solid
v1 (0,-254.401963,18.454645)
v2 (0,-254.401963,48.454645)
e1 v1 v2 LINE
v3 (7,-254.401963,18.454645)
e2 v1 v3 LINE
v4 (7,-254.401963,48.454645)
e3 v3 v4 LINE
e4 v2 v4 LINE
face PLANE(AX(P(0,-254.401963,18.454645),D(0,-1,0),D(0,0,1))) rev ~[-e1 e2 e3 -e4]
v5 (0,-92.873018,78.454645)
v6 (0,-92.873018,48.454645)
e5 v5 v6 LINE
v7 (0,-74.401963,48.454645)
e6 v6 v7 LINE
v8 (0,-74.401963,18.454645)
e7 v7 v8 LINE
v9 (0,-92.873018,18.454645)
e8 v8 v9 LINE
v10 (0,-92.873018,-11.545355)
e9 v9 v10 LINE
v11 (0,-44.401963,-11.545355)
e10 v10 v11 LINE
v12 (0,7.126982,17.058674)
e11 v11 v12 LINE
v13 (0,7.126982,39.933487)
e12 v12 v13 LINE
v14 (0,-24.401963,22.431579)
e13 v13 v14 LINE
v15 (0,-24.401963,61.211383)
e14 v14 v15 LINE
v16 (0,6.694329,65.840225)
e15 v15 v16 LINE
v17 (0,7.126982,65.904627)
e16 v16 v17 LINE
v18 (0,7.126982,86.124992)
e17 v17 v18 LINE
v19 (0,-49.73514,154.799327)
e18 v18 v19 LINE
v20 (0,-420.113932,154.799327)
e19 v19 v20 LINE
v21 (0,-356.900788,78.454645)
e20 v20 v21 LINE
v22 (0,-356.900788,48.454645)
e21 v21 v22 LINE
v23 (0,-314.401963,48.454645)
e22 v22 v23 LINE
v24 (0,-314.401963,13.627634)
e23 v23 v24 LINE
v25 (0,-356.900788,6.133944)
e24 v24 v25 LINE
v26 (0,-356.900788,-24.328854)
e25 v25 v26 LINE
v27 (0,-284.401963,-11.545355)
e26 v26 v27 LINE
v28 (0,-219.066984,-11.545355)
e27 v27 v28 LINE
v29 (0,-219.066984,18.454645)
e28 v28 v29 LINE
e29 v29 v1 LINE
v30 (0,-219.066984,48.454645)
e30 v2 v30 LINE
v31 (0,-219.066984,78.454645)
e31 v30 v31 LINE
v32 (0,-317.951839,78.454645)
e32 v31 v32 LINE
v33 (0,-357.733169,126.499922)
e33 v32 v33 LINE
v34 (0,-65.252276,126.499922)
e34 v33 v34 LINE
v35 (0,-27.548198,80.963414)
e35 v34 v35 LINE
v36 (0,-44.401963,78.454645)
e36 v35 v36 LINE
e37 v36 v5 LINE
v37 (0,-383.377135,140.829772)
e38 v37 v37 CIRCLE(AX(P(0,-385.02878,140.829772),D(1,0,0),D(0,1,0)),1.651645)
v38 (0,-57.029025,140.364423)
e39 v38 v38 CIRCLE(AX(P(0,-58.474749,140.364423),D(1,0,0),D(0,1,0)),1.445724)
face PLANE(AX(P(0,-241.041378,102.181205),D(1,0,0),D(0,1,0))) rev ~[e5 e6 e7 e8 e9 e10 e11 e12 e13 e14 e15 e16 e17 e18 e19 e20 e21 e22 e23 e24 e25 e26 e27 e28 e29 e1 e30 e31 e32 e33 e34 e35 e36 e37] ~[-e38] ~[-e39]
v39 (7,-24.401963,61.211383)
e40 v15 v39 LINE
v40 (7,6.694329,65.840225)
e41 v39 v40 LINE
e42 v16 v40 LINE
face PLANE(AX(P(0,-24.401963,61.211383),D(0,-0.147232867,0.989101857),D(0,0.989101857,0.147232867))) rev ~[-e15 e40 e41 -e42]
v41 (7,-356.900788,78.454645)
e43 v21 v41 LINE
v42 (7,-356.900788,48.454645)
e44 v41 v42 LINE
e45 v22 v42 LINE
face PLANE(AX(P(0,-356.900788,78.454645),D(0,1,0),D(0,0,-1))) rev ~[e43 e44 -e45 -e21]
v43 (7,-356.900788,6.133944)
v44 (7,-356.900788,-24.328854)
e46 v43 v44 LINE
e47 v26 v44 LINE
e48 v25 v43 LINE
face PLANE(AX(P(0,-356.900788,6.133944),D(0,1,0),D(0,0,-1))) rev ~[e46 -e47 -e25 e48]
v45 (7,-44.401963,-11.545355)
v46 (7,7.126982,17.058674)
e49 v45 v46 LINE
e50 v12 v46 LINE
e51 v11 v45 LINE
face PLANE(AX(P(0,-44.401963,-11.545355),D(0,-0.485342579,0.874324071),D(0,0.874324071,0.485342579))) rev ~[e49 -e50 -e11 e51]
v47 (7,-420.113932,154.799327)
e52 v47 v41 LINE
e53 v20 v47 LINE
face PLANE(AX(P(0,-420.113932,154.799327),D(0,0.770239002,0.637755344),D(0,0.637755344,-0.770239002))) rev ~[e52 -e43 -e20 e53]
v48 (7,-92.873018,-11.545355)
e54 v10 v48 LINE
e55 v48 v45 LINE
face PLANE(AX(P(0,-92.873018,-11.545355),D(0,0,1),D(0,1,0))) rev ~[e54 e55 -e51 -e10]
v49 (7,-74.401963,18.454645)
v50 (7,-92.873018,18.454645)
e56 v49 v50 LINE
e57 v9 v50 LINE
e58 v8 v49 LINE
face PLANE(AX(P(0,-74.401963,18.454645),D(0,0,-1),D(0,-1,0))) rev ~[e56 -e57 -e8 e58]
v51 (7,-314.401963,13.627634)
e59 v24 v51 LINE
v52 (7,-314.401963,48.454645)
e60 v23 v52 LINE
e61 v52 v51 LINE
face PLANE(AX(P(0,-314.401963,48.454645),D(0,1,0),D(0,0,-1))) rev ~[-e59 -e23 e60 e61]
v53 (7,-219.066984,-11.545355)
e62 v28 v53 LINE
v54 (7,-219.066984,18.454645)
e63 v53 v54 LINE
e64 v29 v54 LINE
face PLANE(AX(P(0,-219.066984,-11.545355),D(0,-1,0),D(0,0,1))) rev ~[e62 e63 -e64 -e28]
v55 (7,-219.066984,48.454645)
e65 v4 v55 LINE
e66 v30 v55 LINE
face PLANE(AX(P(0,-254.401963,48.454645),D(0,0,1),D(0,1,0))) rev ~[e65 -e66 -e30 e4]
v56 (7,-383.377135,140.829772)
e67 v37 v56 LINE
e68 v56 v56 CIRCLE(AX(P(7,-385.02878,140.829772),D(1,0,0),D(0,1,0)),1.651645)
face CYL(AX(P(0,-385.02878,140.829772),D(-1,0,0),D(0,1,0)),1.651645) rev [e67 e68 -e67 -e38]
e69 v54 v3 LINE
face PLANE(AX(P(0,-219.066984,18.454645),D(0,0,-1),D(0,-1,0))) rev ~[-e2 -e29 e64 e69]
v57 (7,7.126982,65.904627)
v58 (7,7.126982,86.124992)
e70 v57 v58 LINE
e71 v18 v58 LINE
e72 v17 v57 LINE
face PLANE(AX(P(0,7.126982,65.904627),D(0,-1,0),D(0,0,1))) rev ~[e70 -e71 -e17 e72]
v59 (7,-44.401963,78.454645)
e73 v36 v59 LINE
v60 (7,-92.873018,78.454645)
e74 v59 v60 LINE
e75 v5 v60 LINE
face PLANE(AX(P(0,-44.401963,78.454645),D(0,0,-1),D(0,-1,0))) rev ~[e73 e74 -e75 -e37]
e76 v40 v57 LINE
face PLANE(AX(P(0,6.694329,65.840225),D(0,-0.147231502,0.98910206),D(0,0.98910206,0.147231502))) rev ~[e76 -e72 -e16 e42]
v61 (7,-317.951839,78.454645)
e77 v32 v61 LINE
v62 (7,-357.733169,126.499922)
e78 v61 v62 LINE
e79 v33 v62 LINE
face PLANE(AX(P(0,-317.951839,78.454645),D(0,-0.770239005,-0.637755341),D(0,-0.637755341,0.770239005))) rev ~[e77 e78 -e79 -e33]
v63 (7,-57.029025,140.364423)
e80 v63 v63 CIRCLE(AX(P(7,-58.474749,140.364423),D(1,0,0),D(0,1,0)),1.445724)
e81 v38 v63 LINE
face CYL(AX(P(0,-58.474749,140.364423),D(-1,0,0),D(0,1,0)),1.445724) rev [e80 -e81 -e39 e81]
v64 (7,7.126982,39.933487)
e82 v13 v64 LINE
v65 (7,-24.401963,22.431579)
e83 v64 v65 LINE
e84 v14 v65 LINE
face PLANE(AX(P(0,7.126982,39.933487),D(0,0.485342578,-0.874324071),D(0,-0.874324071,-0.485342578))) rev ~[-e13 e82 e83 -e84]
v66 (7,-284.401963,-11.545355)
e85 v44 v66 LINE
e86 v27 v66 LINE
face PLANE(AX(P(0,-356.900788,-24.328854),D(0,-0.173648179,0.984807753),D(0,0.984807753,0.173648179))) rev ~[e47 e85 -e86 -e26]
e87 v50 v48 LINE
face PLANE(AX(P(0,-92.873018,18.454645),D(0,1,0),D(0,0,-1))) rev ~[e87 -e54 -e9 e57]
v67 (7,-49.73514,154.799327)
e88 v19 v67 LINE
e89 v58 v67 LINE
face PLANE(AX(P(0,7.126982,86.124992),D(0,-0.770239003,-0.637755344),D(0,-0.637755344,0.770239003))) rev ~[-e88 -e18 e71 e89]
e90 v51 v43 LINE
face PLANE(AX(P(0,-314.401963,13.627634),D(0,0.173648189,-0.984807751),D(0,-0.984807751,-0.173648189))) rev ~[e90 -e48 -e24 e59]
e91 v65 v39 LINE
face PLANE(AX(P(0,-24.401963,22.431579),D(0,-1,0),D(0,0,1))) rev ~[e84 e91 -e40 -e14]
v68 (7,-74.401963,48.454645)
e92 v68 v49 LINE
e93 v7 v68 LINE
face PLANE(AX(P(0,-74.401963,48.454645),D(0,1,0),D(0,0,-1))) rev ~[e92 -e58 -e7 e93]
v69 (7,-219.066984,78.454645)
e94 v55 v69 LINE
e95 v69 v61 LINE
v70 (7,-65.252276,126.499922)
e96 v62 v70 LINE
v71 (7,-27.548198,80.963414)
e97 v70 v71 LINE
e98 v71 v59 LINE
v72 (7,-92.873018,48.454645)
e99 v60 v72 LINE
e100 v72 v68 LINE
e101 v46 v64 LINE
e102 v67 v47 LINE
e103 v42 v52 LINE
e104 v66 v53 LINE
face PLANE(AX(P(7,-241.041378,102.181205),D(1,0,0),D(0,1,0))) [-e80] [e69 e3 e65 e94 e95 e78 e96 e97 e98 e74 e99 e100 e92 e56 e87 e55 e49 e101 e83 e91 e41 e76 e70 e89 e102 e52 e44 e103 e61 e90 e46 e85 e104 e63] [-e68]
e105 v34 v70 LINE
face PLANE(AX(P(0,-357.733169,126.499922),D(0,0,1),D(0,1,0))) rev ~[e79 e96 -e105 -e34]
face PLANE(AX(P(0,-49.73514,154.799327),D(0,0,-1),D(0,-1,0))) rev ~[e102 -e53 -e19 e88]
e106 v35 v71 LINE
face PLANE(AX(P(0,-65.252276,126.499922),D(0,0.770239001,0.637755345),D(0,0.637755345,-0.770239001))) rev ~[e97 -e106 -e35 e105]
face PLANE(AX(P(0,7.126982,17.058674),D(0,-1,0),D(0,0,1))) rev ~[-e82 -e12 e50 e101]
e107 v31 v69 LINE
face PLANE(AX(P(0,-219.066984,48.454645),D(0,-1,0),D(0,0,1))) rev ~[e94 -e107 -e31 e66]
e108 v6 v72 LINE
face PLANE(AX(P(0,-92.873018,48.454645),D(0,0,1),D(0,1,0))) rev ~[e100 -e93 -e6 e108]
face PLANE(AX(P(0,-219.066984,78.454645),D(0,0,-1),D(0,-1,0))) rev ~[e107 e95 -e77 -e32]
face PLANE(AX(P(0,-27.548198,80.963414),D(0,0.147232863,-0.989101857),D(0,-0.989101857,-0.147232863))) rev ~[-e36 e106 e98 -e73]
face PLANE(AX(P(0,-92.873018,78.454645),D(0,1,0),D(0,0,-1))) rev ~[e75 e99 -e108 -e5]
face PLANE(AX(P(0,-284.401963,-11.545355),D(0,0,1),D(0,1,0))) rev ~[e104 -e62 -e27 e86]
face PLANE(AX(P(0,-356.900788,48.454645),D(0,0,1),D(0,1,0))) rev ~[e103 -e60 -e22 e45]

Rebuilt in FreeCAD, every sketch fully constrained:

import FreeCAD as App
import Part
import Sketcher
Q = App.Units.Quantity


def add_polygon(sketch, points):
    """Adds a closed chain of lines whose ends are joined by coincident constraints."""
    first, n = sketch.GeometryCount, len(points)
    for a, b in zip(points, points[1:] + points[:1]):
        sketch.addGeometry(Part.LineSegment(App.Vector(*a, 0), App.Vector(*b, 0)), False)
    for i in range(n):
        sketch.addConstraint(Sketcher.Constraint("Coincident", first + i, 2, first + (i + 1) % n, 1))

doc = App.newDocument("Part")
body = doc.addObject("PartDesign::Body", "Body")

# Sketch on YZ plane
sketch1 = body.newObject("Sketcher::SketchObject", "Sketch")
sketch1.AttachmentSupport = (doc.getObject("YZ_Plane"), [""])
sketch1.MapMode = "FlatFace"
add_polygon(sketch1, [(-356.900788, 6.133944), (-356.900788, -24.328854), (-284.401963, -11.545355), (-219.066984, -11.545355), (-219.066984, 18.454645), (-254.401963, 18.454645), (-254.401963, 48.454645), (-219.066984, 48.454645), (-219.066984, 78.454645), (-317.951839, 78.454645), (-357.733169, 126.499922), (-65.252276, 126.499922), (-27.548198, 80.963414), (-44.401963, 78.454645), (-92.873018, 78.454645), (-92.873018, 48.454645), (-74.401963, 48.454645), (-74.401963, 18.454645), (-92.873018, 18.454645), (-92.873018, -11.545355), (-44.401963, -11.545355), (7.126982, 17.058674), (7.126982, 39.933487), (-24.401963, 22.431579), (-24.401963, 61.211383), (6.694329, 65.840225), (7.126982, 65.904627), (7.126982, 86.124992), (-49.73514, 154.799327), (-420.113932, 154.799327), (-356.900788, 78.454645), (-356.900788, 48.454645), (-314.401963, 48.454645), (-314.401963, 13.627634)])  # lines 0-33
sketch1.addGeometry(Part.Circle(App.Vector(-58.474749, 140.364423, 0), App.Vector(0, 0, 1), 1.445724), False)  # 34
sketch1.addGeometry(Part.Circle(App.Vector(-385.02878, 140.829772, 0), App.Vector(0, 0, 1), 1.651645), False)  # 35
sketch1.addConstraint(Sketcher.Constraint("Vertical", 0))
sketch1.addConstraint(Sketcher.Constraint("Horizontal", 2))
sketch1.addConstraint(Sketcher.Constraint("Vertical", 3))
sketch1.addConstraint(Sketcher.Constraint("Horizontal", 4))
sketch1.addConstraint(Sketcher.Constraint("Vertical", 5))
sketch1.addConstraint(Sketcher.Constraint("Horizontal", 6))
sketch1.addConstraint(Sketcher.Constraint("Vertical", 7))
sketch1.addConstraint(Sketcher.Constraint("Horizontal", 8))
sketch1.addConstraint(Sketcher.Constraint("Horizontal", 10))
sketch1.addConstraint(Sketcher.Constraint("Horizontal", 13))
sketch1.addConstraint(Sketcher.Constraint("Vertical", 14))
sketch1.addConstraint(Sketcher.Constraint("Horizontal", 15))
sketch1.addConstraint(Sketcher.Constraint("Vertical", 16))
sketch1.addConstraint(Sketcher.Constraint("Horizontal", 17))
sketch1.addConstraint(Sketcher.Constraint("Vertical", 18))
sketch1.addConstraint(Sketcher.Constraint("Horizontal", 19))
sketch1.addConstraint(Sketcher.Constraint("Vertical", 21))
sketch1.addConstraint(Sketcher.Constraint("Vertical", 23))
sketch1.addConstraint(Sketcher.Constraint("Vertical", 26))
sketch1.addConstraint(Sketcher.Constraint("Horizontal", 28))
sketch1.addConstraint(Sketcher.Constraint("Vertical", 30))
sketch1.addConstraint(Sketcher.Constraint("Horizontal", 31))
sketch1.addConstraint(Sketcher.Constraint("Vertical", 32))
sketch1.addConstraint(Sketcher.Constraint("Parallel", 9, 11))
sketch1.addConstraint(Sketcher.Constraint("Parallel", 20, 22))
sketch1.addConstraint(Sketcher.Constraint("Parallel", 12, 24))
sketch1.addConstraint(Sketcher.Constraint("Parallel", 24, 25))
sketch1.addConstraint(Sketcher.Constraint("Parallel", 11, 27))
sketch1.addConstraint(Sketcher.Constraint("Parallel", 27, 29))
sketch1.addConstraint(Sketcher.Constraint("Parallel", 1, 33))
sketch1.addConstraint(Sketcher.Constraint("Horizontal", 8, 2, 12, 2))
sketch1.addConstraint(Sketcher.Constraint("Horizontal", 6, 2, 14, 2))
sketch1.addConstraint(Sketcher.Constraint("Horizontal", 4, 2, 16, 2))
sketch1.addConstraint(Sketcher.Constraint("Horizontal", 2, 2, 18, 2))
sketch1.addConstraint(Sketcher.Constraint("Horizontal", 13, 2, 29, 2))
sketch1.addConstraint(Sketcher.Constraint("Horizontal", 15, 2, 30, 2))
sketch1.addConstraint(Sketcher.Constraint("Vertical", 3, 2, 6, 2))
sketch1.addConstraint(Sketcher.Constraint("Vertical", 14, 2, 17, 2))
sketch1.addConstraint(Sketcher.Constraint("Vertical", 12, 2, 19, 2))
sketch1.addConstraint(Sketcher.Constraint("Vertical", 21, 2, 25, 2))
sketch1.addConstraint(Sketcher.Constraint("Vertical", 0, 2, 29, 2))
sketch1.addConstraint(Sketcher.Constraint("Equal", 3, 5))
sketch1.addConstraint(Sketcher.Constraint("Equal", 5, 7))
sketch1.addConstraint(Sketcher.Constraint("DistanceY", 3, 1, 3, 2, Q("30 mm")))
sketch1.addConstraint(Sketcher.Constraint("Angle", 1, Q("10 deg")))
sketch1.addConstraint(Sketcher.Constraint("DistanceX", 1, 2, 4, 2, Q("30 mm")))
sketch1.addConstraint(Sketcher.Constraint("DistanceX", 15, 2, 12, 2, Q("30 mm")))
sketch1.addConstraint(Sketcher.Constraint("DistanceX", 19, 2, 22, 2, Q("20 mm")))
sketch1.addConstraint(Sketcher.Constraint("DistanceX", 31, 2, 5, 2, Q("60 mm")))
sketch1.addConstraint(Sketcher.Constraint("Diameter", 34, Q("2.891448 mm")))
sketch1.addConstraint(Sketcher.Constraint("Diameter", 35, Q("3.30329 mm")))
sketch1.addConstraint(Sketcher.Constraint("DistanceX", 2, 1, 2, 2, Q("65.334979 mm")))
sketch1.addConstraint(Sketcher.Constraint("DistanceX", 28, 2, 28, 1, Q("370.378792 mm")))
sketch1.addConstraint(Sketcher.Constraint("DistanceY", 32, 2, 32, 1, Q("34.827011 mm")))
sketch1.addConstraint(Sketcher.Constraint("DistanceY", 0, 2, 1, 2, Q("12.783499 mm")))
sketch1.addConstraint(Sketcher.Constraint("DistanceY", 10, 2, 34, 3, Q("13.864501 mm")))
sketch1.addConstraint(Sketcher.Constraint("Distance", 11, Q("59.119972 mm")))
sketch1.addConstraint(Sketcher.Constraint("Distance", 20, Q("58.93575 mm")))
sketch1.addConstraint(Sketcher.Constraint("Distance", 25, Q("0.43742 mm")))
sketch1.addConstraint(Sketcher.Constraint("DistanceX", 8, 2, 8, 1, Q("98.884855 mm")))
sketch1.addConstraint(Sketcher.Constraint("DistanceX", 10, 1, 10, 2, Q("292.480893 mm")))
sketch1.addConstraint(Sketcher.Constraint("DistanceX", 13, 2, 13, 1, Q("48.471055 mm")))
sketch1.addConstraint(Sketcher.Constraint("DistanceY", 21, 1, 21, 2, Q("22.874813 mm")))
sketch1.addConstraint(Sketcher.Constraint("DistanceY", 23, 1, 23, 2, Q("38.779804 mm")))
sketch1.addConstraint(Sketcher.Constraint("DistanceY", 26, 1, 26, 2, Q("20.220365 mm")))
sketch1.addConstraint(Sketcher.Constraint("DistanceX", 34, 3, -1, 1, Q("58.474749 mm")))
sketch1.addConstraint(Sketcher.Constraint("DistanceX", 35, 3, -1, 1, Q("385.02878 mm")))
sketch1.addConstraint(Sketcher.Constraint("DistanceY", -1, 1, 35, 3, Q("140.829772 mm")))
sketch1.addConstraint(Sketcher.Constraint("DistanceX", 0, 2, -1, 1, Q("356.900788 mm")))
sketch1.addConstraint(Sketcher.Constraint("DistanceX", 9, 2, -1, 1, Q("357.733169 mm")))
sketch1.addConstraint(Sketcher.Constraint("DistanceY", -1, 1, 9, 2, Q("126.499922 mm")))
sketch1.addConstraint(Sketcher.Constraint("DistanceX", 13, 2, -1, 1, Q("92.873018 mm")))
sketch1.addConstraint(Sketcher.Constraint("DistanceY", -1, 1, 22, 2, Q("22.431579 mm")))
sketch1.addConstraint(Sketcher.Constraint("DistanceX", 27, 2, -1, 1, Q("49.73514 mm")))
pad1 = body.newObject("PartDesign::Pad", "Pad")
pad1.Profile = sketch1
pad1.Length = 7

doc.recompute()
